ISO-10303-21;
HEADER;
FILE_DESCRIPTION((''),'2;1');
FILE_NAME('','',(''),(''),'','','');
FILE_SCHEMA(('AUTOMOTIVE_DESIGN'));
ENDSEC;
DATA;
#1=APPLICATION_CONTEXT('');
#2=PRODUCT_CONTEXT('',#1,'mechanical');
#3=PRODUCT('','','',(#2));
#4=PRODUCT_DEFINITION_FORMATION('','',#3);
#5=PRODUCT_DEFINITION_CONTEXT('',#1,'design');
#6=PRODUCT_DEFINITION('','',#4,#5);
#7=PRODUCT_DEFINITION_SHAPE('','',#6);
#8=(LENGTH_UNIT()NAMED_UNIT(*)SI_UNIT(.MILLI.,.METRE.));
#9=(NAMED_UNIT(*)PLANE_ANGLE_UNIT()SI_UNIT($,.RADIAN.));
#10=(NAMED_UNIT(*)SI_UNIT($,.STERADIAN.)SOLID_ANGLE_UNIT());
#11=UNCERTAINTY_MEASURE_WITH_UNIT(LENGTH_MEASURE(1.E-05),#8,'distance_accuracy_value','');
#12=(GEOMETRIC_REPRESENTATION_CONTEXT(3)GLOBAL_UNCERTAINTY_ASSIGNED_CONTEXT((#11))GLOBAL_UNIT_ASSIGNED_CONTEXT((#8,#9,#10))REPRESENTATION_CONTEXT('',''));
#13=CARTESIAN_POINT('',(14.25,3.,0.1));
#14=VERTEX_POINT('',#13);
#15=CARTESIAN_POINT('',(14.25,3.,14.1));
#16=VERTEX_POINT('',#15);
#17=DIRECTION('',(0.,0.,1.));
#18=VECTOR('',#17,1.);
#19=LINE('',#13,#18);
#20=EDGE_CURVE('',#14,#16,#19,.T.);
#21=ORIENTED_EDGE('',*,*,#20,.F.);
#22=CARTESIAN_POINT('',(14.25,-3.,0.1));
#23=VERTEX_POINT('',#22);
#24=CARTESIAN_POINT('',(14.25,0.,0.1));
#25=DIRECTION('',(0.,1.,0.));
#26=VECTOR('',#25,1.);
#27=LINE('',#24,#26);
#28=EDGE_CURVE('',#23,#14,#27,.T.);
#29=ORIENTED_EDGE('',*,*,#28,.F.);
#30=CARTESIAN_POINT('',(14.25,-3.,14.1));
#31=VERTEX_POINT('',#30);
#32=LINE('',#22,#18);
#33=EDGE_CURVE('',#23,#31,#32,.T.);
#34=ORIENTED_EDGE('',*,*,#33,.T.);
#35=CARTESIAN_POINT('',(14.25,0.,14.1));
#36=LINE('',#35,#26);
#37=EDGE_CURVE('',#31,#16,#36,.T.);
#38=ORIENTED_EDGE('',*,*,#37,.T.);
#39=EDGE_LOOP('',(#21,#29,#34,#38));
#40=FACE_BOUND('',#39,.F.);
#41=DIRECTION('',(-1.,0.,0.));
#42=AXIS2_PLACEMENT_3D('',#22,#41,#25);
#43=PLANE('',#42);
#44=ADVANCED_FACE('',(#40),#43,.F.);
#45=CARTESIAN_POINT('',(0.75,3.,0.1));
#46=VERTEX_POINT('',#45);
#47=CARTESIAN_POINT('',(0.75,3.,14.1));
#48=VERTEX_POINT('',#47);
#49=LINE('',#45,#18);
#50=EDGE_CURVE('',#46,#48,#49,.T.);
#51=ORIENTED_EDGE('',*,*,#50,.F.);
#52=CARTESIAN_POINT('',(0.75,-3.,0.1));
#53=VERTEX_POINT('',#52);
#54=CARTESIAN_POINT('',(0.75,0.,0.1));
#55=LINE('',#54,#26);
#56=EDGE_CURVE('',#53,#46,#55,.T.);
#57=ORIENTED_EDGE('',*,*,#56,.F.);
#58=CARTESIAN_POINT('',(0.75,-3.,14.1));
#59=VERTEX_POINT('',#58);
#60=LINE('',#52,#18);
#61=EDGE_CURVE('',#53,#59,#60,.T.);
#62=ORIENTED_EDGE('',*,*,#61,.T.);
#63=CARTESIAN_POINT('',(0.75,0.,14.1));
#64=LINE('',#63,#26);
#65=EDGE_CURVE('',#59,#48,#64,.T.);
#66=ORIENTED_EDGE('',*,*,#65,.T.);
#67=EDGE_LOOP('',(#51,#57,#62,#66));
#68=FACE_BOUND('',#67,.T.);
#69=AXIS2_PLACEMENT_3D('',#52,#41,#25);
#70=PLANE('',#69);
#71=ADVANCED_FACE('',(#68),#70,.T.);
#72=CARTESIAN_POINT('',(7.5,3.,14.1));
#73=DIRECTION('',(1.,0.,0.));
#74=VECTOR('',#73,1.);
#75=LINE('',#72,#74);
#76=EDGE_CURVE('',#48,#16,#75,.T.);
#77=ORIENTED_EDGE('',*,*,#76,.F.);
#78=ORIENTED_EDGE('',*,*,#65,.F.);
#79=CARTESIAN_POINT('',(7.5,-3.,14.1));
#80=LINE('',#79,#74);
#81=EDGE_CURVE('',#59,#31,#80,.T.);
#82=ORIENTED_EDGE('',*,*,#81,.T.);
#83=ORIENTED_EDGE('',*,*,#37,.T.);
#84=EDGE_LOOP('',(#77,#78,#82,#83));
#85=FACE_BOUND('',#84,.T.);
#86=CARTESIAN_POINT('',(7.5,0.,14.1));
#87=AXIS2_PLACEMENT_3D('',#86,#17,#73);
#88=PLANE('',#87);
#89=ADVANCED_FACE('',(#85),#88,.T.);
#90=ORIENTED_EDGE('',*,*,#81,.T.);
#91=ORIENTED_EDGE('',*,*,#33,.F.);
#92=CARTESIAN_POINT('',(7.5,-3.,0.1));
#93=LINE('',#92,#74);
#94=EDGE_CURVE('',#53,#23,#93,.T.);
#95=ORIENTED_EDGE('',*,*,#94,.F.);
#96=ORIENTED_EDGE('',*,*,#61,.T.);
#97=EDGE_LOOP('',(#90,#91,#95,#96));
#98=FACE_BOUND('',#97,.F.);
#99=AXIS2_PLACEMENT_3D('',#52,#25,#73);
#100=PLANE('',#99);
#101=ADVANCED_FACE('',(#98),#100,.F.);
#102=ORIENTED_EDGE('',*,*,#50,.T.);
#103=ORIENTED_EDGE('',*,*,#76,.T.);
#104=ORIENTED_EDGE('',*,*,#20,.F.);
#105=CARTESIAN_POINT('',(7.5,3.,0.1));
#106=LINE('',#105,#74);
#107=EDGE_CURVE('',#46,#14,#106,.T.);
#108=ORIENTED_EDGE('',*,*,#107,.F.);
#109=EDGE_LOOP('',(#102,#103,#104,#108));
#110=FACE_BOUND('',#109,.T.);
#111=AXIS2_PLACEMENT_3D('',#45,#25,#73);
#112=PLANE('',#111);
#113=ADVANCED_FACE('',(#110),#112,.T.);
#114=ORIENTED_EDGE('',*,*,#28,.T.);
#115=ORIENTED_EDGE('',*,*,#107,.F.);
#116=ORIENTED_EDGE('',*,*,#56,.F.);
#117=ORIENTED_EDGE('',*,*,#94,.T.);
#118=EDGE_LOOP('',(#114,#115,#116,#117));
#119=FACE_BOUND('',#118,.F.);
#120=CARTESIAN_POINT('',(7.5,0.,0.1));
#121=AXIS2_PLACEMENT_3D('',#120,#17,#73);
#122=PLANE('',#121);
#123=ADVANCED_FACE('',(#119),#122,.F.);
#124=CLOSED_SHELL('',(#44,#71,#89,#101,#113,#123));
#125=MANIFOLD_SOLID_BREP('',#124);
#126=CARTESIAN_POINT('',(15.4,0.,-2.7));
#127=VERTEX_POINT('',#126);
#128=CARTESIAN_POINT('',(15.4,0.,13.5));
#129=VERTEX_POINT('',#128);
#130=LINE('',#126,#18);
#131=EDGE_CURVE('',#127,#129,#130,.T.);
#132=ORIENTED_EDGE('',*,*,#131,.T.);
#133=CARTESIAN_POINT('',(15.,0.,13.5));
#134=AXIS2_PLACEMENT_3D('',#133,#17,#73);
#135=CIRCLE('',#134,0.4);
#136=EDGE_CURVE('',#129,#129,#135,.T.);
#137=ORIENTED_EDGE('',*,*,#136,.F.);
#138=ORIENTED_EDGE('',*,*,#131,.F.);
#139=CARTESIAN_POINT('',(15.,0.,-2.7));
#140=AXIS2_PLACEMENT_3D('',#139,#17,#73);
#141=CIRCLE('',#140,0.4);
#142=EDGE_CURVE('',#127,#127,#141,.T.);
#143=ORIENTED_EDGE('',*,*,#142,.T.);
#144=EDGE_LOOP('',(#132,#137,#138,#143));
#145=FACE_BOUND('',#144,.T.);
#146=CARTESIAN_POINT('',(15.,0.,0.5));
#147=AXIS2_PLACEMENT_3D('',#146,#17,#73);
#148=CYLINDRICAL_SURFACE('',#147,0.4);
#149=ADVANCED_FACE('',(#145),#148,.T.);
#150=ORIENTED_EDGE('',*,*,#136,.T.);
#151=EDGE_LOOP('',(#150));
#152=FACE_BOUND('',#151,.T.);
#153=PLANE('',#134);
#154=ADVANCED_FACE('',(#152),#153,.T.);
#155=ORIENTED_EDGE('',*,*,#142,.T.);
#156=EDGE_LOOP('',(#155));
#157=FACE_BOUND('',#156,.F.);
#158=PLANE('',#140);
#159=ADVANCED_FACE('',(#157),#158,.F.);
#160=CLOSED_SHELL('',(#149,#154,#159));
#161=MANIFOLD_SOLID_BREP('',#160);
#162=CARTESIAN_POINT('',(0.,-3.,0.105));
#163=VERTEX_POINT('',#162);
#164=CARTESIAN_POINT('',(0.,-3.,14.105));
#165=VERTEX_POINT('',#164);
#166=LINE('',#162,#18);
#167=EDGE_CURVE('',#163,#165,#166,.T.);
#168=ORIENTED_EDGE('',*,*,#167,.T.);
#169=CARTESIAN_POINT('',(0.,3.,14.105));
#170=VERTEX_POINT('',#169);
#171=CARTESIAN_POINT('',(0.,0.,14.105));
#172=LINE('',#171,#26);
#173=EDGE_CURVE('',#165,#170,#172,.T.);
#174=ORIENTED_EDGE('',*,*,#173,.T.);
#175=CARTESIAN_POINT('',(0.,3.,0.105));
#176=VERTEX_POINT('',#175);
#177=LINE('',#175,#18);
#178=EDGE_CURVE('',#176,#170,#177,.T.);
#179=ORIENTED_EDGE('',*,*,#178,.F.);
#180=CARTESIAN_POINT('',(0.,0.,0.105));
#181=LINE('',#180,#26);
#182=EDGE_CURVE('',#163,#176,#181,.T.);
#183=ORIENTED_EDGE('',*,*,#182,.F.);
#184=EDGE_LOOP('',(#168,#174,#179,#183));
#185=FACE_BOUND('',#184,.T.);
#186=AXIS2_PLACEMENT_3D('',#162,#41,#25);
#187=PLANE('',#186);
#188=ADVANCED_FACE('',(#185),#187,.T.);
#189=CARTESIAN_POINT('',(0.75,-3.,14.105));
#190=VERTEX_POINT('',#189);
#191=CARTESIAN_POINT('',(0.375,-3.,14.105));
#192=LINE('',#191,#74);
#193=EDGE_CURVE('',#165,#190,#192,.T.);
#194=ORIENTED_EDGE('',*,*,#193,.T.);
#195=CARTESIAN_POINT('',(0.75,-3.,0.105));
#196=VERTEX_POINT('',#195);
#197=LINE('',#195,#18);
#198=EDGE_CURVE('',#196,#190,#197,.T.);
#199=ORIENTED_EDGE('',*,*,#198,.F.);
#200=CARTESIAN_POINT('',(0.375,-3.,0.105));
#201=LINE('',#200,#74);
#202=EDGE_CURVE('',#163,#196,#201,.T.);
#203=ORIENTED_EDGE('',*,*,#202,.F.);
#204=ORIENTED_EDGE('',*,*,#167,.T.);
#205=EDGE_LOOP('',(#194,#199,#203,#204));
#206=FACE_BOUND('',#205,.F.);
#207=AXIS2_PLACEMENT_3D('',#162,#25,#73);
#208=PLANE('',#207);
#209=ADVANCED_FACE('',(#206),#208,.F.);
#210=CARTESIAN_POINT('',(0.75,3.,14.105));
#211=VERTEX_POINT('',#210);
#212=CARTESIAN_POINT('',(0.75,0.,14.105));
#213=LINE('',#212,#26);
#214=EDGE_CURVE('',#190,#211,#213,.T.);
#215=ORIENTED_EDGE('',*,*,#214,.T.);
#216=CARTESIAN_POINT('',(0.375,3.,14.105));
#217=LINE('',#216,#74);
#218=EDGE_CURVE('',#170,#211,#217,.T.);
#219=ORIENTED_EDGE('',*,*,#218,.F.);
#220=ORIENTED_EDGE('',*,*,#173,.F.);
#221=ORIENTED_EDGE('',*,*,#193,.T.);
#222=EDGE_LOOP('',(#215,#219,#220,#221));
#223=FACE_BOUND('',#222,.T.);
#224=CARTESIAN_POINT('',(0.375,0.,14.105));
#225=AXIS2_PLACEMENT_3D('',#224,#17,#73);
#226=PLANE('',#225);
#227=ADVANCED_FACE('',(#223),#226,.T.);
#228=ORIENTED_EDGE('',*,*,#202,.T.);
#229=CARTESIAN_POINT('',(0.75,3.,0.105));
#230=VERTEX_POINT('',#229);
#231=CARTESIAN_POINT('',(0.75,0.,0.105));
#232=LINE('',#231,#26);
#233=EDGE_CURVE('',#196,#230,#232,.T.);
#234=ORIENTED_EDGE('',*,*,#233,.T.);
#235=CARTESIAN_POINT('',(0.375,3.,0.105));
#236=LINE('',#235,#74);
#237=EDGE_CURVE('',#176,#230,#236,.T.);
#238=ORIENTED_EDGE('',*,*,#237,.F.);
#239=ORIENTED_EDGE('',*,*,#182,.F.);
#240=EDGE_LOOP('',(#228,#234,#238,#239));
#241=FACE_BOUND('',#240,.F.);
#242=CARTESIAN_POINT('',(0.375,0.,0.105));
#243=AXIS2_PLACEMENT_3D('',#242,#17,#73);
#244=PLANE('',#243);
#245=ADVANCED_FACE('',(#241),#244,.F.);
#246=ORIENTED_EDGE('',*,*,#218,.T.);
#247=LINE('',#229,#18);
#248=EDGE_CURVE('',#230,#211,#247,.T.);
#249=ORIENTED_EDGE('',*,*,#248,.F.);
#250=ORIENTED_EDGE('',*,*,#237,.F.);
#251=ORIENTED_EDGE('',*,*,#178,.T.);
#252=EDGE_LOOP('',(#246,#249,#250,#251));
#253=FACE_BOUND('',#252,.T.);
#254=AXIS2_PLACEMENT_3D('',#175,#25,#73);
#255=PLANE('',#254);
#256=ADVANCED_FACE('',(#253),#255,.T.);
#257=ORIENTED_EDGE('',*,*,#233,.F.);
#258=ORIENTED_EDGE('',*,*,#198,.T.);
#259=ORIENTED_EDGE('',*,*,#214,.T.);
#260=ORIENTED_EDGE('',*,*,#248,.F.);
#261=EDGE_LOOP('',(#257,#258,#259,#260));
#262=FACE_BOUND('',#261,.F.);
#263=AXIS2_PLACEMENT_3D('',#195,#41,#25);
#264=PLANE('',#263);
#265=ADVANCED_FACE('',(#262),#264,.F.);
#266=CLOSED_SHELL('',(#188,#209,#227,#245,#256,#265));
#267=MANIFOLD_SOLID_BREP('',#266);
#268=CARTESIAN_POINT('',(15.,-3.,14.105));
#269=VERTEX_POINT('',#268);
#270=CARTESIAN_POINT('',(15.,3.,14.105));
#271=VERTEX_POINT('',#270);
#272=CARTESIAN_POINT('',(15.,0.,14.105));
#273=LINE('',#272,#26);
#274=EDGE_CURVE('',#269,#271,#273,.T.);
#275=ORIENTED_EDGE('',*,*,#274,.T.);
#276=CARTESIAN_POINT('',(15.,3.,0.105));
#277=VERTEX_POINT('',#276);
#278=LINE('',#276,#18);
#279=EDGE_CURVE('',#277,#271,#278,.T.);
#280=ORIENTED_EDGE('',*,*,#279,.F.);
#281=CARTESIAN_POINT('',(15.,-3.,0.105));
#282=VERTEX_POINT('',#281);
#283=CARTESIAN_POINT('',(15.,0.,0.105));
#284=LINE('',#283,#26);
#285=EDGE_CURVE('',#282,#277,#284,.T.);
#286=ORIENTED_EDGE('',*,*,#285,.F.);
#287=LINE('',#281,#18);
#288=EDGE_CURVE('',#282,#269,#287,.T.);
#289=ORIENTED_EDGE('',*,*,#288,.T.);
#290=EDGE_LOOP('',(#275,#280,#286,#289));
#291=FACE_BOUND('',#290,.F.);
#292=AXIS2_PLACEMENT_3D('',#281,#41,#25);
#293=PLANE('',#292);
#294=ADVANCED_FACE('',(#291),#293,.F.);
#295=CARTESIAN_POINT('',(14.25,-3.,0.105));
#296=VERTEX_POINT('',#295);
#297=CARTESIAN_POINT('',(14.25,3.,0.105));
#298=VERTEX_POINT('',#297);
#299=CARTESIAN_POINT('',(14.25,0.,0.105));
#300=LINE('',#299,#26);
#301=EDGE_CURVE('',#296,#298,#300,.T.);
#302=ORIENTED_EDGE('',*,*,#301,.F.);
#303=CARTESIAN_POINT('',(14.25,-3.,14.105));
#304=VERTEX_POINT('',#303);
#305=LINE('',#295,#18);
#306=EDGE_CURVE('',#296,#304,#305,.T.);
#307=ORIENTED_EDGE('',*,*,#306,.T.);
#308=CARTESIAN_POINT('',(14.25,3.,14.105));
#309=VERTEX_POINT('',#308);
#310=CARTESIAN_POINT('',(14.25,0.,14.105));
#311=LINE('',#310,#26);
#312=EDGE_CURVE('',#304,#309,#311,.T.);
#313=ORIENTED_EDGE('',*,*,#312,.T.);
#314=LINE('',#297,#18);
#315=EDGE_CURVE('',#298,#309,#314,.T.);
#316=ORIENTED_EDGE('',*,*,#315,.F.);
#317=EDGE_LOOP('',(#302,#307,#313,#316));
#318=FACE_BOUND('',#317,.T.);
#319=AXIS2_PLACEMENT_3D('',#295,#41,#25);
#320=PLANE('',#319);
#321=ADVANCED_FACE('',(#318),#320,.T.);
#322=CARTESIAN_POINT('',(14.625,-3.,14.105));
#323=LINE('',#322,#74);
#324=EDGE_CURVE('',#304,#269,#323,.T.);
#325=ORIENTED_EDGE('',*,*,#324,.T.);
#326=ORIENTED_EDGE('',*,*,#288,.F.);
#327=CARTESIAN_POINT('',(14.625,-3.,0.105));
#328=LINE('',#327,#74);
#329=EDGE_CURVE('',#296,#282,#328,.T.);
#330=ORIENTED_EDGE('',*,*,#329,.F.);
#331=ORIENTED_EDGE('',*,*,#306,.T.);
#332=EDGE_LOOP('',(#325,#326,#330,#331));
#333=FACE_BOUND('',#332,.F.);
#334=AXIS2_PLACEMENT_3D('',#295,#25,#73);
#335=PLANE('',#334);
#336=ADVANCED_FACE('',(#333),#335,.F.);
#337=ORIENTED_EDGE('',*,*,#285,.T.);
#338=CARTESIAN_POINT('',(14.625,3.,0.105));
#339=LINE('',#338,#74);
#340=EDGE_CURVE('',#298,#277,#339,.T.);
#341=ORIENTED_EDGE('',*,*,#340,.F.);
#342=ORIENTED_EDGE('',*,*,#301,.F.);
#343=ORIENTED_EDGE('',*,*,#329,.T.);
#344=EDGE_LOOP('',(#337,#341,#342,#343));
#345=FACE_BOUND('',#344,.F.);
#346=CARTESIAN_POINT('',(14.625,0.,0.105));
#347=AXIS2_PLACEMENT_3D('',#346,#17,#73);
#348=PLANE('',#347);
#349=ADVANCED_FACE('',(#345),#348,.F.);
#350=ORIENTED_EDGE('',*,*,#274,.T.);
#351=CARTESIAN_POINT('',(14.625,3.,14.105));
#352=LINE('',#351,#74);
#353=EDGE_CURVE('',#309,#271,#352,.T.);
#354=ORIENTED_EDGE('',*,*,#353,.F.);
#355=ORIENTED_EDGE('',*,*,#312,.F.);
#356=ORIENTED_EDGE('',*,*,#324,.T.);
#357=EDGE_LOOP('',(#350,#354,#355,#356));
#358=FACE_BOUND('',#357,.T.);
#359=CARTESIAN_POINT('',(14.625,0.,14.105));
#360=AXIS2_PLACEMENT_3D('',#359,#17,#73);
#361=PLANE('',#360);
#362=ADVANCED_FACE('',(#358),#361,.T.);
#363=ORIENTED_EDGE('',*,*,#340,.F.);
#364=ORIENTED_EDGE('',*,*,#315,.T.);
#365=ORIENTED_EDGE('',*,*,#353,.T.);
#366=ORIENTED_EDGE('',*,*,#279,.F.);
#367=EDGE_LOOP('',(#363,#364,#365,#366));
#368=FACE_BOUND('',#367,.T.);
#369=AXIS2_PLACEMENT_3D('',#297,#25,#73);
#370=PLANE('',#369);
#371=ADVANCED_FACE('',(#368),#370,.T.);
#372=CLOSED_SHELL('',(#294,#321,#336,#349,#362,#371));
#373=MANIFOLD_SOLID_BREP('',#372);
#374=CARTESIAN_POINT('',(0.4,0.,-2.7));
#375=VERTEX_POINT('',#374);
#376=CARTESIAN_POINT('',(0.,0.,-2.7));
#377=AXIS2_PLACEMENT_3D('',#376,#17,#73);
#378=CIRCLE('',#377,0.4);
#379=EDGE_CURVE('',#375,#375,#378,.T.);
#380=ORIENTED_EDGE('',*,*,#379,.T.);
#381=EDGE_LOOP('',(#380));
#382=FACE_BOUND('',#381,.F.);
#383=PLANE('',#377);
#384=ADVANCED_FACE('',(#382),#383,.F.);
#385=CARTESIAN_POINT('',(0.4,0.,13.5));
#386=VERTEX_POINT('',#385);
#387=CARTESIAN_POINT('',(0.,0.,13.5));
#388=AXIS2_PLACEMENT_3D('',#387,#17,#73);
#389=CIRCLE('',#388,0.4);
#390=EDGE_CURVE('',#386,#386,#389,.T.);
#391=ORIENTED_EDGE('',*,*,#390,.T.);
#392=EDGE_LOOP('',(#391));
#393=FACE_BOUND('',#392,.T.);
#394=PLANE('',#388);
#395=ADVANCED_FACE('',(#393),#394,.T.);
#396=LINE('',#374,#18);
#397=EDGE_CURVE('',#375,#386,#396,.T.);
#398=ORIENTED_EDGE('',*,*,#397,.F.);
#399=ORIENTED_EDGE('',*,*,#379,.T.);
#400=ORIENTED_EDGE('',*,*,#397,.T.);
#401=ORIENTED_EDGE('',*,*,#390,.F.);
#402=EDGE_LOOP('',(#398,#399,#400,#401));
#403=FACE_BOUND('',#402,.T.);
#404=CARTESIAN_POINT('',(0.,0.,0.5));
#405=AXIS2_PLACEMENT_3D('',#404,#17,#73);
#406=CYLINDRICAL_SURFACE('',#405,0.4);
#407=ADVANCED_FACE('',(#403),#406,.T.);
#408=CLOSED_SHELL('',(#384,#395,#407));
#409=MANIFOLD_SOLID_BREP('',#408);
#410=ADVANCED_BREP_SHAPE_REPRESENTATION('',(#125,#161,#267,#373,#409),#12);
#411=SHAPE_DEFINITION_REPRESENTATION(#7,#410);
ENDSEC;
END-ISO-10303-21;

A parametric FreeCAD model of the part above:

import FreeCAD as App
import Part
import Sketcher

V = App.Vector
Q = App.Units.Quantity


def add_polygon(sketch, points):
    """Adds a closed chain of lines whose ends are joined by coincident constraints."""
    first, n = sketch.GeometryCount, len(points)
    for a, b in zip(points, points[1:] + points[:1]):
        sketch.addGeometry(Part.LineSegment(App.Vector(*a, 0), App.Vector(*b, 0)), False)
    for i in range(n):
        sketch.addConstraint(Sketcher.Constraint("Coincident", first + i, 2, first + (i + 1) % n, 1))

doc = App.newDocument("Part")
body = doc.addObject("PartDesign::Body", "Body")

# Sketch on XY plane
sketch1 = body.newObject("Sketcher::SketchObject", "Sketch")
sketch1.AttachmentSupport = (doc.getObject("XY_Plane"), [""])
sketch1.MapMode = "FlatFace"
sketch1.AttachmentOffset = App.Placement(V(0, 0, 0.1), App.Rotation())
add_polygon(sketch1, [(1, 3), (1, -3), (14, -3), (14, 3)])  # lines 0-3
sketch1.addConstraint([
    Sketcher.Constraint("Vertical", 0),
    Sketcher.Constraint("Horizontal", 1),
    Sketcher.Constraint("Vertical", 2),
    Sketcher.Constraint("Horizontal", 3),
    Sketcher.Constraint("DistanceY", 0, 2, 0, 1, Q("6 mm")),
    Sketcher.Constraint("DistanceX", 1, 1, 1, 2, Q("13.5 mm")),
    Sketcher.Constraint("DistanceY", 0, 2, -1, 1, Q("3 mm")),
    Sketcher.Constraint("DistanceX", -1, 1, 0, 2, Q("0.75 mm")),
])
pad1 = body.newObject("PartDesign::Pad", "Pad")
pad1.Profile = sketch1
pad1.Length = 14
body2 = doc.addObject("PartDesign::Body", "Body001")
body2.AllowCompound = True

# Sketch on XY plane
sketch2 = body2.newObject("Sketcher::SketchObject", "Sketch001")
sketch2.AttachmentSupport = (doc.getObject("XY_Plane001"), [""])
sketch2.MapMode = "FlatFace"
sketch2.AttachmentOffset = App.Placement(V(0, 0, 0.5), App.Rotation())
sketch2.addGeometry([
    Part.Circle(V(0, 0, 0), V(0, 0, 1), 0.4),
    Part.Circle(V(15, 0, 0), V(0, 0, 1), 0.4),
], False)
sketch2.addConstraint([
    Sketcher.Constraint("Coincident", 0, 3, -1, 1),
    Sketcher.Constraint("Equal", 0, 1),
    Sketcher.Constraint("PointOnObject", 1, 3, -1),
    Sketcher.Constraint("Diameter", 0, Q("0.8 mm")),
    Sketcher.Constraint("DistanceX", -1, 1, 1, 3, Q("15 mm")),
])
pad2 = body2.newObject("PartDesign::Pad", "Pad001")
pad2.Profile = sketch2
pad2.Type = "TwoLengths"
pad2.Length = 13
pad2.Length2 = 3.2
body3 = doc.addObject("PartDesign::Body", "Body002")
body3.AllowCompound = True

# Sketch on XY plane
sketch3 = body3.newObject("Sketcher::SketchObject", "Sketch002")
sketch3.AttachmentSupport = (doc.getObject("XY_Plane002"), [""])
sketch3.MapMode = "FlatFace"
sketch3.AttachmentOffset = App.Placement(V(0, 0, 0.105), App.Rotation())
add_polygon(sketch3, [(0, 3), (0, -3), (0.8, -3), (0.8, 3)])  # lines 0-3
add_polygon(sketch3, [(14.2, 3), (14.2, -3), (15, -3), (15, 3)])  # lines 4-7
sketch3.addConstraint([
    Sketcher.Constraint("Vertical", 0),
    Sketcher.Constraint("Horizontal", 1),
    Sketcher.Constraint("Vertical", 2),
    Sketcher.Constraint("Horizontal", 3),
    Sketcher.Constraint("Vertical", 4),
    Sketcher.Constraint("Horizontal", 5),
    Sketcher.Constraint("Vertical", 6),
    Sketcher.Constraint("Horizontal", 7),
    Sketcher.Constraint("Symmetric", 0, 2, 3, 2, -1, 1),
    Sketcher.Constraint("Horizontal", 1, 2, 4, 2),
    Sketcher.Constraint("Horizontal", 3, 2, 6, 2),
    Sketcher.Constraint("Equal", 3, 5),
    Sketcher.Constraint("DistanceY", 0, 2, 0, 1, Q("6 mm")),
    Sketcher.Constraint("DistanceX", -1, 1, 5, 2, Q("15 mm")),
    Sketcher.Constraint("DistanceX", 1, 1, 1, 2, Q("0.75 mm")),
])
pad3 = body3.newObject("PartDesign::Pad", "Pad002")
pad3.Profile = sketch3
pad3.Length = 14

doc.recompute()
